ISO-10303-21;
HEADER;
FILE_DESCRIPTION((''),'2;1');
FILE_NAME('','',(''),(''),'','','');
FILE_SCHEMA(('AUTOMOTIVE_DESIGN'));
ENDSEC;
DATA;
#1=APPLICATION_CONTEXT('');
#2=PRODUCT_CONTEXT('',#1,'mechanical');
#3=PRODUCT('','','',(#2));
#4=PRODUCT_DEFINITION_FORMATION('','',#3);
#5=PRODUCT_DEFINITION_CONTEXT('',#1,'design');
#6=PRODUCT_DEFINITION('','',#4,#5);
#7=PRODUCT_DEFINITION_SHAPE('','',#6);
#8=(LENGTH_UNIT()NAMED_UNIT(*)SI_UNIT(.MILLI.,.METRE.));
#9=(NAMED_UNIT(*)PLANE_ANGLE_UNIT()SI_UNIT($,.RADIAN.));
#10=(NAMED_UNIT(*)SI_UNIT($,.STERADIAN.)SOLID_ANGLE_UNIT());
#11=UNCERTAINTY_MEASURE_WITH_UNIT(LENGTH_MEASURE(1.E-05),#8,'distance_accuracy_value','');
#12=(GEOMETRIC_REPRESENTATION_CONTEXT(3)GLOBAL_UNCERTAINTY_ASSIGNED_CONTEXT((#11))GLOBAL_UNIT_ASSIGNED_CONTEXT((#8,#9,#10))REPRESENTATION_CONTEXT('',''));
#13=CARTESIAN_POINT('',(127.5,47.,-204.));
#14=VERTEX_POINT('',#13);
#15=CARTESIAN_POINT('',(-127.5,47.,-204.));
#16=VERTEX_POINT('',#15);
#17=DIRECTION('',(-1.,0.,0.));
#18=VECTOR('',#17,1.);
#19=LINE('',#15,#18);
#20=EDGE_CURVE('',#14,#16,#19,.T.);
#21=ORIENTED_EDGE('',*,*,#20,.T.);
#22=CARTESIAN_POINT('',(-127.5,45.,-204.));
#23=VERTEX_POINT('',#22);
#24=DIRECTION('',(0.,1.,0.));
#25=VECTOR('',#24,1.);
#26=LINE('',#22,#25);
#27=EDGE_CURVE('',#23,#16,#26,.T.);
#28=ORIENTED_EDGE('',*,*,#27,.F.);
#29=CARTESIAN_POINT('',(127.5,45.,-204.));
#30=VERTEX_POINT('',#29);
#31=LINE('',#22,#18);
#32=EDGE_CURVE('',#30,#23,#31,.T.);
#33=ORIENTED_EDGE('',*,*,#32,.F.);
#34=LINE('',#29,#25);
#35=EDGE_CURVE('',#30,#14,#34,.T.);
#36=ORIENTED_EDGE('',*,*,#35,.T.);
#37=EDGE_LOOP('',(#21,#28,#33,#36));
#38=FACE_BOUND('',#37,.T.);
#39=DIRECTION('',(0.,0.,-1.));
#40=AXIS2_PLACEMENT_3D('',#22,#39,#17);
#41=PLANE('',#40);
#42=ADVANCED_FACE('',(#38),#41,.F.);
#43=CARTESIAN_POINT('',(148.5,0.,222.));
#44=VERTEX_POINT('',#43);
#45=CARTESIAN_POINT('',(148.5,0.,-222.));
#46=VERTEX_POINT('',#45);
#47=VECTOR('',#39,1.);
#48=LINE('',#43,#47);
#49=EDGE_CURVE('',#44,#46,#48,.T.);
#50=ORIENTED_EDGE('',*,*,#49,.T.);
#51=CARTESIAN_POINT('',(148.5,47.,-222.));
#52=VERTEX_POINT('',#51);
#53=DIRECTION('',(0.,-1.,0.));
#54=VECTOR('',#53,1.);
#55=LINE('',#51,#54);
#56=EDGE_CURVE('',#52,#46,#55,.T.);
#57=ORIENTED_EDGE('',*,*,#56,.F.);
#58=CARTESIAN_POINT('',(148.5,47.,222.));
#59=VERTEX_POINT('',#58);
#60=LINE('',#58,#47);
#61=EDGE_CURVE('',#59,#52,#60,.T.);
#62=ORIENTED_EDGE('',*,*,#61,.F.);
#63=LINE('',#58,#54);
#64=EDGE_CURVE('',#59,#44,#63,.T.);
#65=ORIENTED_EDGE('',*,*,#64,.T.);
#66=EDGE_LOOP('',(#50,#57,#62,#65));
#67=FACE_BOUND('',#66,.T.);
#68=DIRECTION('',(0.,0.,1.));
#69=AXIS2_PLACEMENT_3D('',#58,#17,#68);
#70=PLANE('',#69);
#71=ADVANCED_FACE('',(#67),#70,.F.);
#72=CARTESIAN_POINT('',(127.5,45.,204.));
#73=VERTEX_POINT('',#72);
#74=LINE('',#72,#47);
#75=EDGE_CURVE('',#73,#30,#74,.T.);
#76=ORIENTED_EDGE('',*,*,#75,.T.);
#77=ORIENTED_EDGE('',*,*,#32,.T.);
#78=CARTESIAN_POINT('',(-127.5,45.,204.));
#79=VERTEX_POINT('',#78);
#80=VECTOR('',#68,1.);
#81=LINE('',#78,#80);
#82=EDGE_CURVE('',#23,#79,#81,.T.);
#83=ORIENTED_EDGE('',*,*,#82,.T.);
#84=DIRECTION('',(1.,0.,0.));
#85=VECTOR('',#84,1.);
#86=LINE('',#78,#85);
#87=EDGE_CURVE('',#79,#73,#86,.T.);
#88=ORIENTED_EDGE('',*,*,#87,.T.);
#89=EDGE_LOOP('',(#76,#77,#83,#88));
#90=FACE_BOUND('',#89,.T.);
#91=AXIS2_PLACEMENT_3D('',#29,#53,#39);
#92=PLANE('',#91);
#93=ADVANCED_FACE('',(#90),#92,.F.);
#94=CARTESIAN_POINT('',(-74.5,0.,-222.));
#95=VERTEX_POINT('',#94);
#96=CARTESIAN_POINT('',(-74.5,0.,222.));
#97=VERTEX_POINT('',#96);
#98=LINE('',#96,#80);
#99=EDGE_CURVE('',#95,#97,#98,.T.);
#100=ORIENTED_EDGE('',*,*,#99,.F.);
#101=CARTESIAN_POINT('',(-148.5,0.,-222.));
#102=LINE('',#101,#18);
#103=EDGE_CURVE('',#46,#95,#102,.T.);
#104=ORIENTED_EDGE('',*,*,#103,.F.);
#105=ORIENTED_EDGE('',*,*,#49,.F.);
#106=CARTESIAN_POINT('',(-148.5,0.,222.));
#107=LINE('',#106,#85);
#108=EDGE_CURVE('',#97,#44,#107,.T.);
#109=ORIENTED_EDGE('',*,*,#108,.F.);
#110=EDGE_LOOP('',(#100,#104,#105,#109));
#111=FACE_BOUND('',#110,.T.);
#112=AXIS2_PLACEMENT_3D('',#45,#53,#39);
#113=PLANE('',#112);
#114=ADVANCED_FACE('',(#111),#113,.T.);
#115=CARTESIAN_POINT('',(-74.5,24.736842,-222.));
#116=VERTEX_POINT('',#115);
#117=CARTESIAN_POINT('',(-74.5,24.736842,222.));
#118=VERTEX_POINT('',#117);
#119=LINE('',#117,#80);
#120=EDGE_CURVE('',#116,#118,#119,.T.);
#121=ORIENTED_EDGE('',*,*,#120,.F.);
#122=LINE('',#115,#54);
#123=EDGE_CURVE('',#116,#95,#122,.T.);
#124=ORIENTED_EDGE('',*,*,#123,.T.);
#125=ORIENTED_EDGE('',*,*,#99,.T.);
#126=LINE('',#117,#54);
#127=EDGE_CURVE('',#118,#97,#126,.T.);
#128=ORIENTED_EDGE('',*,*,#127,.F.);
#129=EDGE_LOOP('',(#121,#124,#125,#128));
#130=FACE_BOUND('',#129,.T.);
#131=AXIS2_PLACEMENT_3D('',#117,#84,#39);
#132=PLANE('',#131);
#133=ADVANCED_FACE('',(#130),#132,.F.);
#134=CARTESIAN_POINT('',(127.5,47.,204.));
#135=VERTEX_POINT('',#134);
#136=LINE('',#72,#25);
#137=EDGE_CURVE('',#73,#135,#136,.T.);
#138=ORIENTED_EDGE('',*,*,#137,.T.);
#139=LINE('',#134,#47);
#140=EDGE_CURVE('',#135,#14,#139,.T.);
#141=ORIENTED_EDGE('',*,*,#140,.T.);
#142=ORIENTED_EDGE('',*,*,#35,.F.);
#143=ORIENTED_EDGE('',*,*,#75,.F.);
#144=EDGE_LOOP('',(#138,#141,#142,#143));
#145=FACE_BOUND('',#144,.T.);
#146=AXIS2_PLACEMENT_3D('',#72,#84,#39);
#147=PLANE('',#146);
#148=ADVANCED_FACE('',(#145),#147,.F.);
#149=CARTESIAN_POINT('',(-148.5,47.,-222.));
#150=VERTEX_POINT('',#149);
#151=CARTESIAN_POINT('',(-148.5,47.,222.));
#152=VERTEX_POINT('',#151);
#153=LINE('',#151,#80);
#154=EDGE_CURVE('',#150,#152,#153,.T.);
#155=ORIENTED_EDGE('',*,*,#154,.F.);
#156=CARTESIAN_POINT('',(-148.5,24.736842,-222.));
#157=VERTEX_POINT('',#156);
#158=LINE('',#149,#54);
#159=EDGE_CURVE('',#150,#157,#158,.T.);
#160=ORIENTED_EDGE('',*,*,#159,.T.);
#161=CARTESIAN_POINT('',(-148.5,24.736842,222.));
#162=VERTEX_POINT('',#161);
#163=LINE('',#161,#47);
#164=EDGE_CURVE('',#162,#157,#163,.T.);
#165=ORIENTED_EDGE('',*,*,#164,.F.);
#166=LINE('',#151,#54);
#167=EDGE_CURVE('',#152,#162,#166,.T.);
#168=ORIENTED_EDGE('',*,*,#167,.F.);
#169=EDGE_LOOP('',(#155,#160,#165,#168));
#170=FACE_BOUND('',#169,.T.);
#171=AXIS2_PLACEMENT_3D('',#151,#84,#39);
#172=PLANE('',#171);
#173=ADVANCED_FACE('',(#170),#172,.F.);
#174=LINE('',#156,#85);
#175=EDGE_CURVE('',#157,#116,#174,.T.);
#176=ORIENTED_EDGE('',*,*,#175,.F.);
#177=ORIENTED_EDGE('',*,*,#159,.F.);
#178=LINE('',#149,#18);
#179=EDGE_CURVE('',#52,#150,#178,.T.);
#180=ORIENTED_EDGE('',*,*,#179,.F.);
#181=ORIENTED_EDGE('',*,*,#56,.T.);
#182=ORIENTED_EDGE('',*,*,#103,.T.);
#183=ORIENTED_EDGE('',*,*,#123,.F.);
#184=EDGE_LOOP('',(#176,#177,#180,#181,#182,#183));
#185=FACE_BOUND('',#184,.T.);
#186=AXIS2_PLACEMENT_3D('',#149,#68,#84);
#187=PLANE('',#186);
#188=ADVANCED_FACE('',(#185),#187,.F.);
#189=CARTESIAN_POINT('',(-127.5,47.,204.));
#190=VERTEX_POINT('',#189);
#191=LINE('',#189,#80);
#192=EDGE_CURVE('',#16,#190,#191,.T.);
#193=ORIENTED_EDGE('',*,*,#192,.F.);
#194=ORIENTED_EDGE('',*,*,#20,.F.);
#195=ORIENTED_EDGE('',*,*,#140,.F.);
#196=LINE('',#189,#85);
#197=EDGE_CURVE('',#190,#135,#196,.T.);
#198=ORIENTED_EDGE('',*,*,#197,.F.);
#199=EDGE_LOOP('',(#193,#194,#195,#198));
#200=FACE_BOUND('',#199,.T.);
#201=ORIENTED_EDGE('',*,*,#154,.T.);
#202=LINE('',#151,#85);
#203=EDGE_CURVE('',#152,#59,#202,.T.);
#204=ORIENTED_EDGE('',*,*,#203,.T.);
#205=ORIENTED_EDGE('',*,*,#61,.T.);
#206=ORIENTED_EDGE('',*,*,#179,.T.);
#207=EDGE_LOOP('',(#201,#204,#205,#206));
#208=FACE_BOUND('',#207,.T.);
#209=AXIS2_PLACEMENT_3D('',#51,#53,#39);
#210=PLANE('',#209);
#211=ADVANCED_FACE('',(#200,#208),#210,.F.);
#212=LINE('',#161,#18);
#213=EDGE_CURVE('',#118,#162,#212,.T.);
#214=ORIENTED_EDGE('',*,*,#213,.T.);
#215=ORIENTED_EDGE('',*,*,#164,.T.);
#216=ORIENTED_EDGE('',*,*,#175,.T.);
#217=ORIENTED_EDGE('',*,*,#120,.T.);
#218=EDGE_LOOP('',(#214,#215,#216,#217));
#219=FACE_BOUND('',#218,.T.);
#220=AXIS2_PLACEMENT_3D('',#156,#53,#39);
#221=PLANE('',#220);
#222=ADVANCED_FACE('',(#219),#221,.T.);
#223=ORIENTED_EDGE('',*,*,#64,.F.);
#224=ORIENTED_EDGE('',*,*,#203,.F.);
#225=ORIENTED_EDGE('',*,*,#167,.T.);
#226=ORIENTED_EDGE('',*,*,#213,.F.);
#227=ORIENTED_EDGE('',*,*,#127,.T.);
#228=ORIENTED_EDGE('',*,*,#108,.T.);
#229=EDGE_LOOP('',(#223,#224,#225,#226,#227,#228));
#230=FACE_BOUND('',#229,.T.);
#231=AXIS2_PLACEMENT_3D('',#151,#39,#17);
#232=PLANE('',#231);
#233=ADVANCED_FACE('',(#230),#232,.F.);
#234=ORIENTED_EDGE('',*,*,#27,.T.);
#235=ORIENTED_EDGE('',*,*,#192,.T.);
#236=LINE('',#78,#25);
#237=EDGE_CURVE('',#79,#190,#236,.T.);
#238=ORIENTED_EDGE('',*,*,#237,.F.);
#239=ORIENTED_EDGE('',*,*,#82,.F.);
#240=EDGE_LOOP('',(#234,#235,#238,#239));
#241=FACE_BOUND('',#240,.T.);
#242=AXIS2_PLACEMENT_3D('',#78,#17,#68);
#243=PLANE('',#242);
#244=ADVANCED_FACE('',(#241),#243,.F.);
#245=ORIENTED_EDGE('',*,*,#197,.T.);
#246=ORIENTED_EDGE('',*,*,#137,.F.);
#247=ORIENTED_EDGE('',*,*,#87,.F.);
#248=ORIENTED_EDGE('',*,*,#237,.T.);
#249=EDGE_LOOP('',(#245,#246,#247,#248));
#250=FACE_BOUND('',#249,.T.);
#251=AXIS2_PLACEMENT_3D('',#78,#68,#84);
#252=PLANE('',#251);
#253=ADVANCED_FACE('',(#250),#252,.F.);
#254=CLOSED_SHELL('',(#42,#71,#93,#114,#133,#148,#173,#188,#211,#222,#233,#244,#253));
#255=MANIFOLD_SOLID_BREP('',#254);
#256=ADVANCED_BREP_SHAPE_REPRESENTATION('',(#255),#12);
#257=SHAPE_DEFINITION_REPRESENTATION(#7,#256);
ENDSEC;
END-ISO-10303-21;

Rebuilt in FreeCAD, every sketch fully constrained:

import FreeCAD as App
import Part
import Sketcher

V = App.Vector

doc = App.newDocument("Part")
params = doc.addObject("Spreadsheet::Sheet", "Params")
for row, (alias, value) in enumerate([
    ("sketch1_width", "297 mm"),
    ("sketch1_height", "444 mm"),
    ("pad1_length", "47 mm"),
    ("sketch2_width", "255 mm"),
    ("sketch2_height", "408 mm"),
    ("pocket1_length", "2 mm"),
    ("sketch3_width", "74 mm"),
    ("sketch3_height", "444 mm"),
    ("pocket2_length", "24.736842 mm"),
], start=1):
    params.set(f"A{row}", alias)
    params.set(f"B{row}", "=" + value)
    params.setAlias(f"B{row}", alias)

body = doc.addObject("PartDesign::Body", "Body")

sketch1 = doc.addObject("Sketcher::SketchObject", "Sketch")
body.addObject(sketch1)
sketch1.AttachmentSupport = (doc.XZ_Plane, [""])
sketch1.MapMode = "FlatFace"
sketch1.addGeometry(Part.LineSegment(V(-148.5, -222, 0), V(-148.5, 222, 0)), False)
sketch1.addGeometry(Part.LineSegment(V(-148.5, 222, 0), V(148.5, 222, 0)), False)
sketch1.addGeometry(Part.LineSegment(V(148.5, 222, 0), V(148.5, -222, 0)), False)
sketch1.addGeometry(Part.LineSegment(V(148.5, -222, 0), V(-148.5, -222, 0)), False)
sketch1.addConstraint(Sketcher.Constraint("Coincident", 0, 2, 1, 1))
sketch1.addConstraint(Sketcher.Constraint("Coincident", 1, 2, 2, 1))
sketch1.addConstraint(Sketcher.Constraint("Coincident", 2, 2, 3, 1))
sketch1.addConstraint(Sketcher.Constraint("Coincident", 3, 2, 0, 1))
sketch1.addConstraint(Sketcher.Constraint("Vertical", 0))
sketch1.addConstraint(Sketcher.Constraint("Horizontal", 1))
sketch1.addConstraint(Sketcher.Constraint("Vertical", 2))
sketch1.addConstraint(Sketcher.Constraint("Horizontal", 3))
sketch1.addConstraint(Sketcher.Constraint("Symmetric", 0, 2, 2, 2, -1, 1))
sketch1.addConstraint(Sketcher.Constraint("DistanceX", 1, 1, 1, 2, 297.0))
sketch1.addConstraint(Sketcher.Constraint("DistanceY", 0, 1, 0, 2, 444.0))
sketch1.setExpression("Constraints[9]", "Params.sketch1_width")
sketch1.setExpression("Constraints[10]", "Params.sketch1_height")
pad1 = doc.addObject("PartDesign::Pad", "Pad")
body.addObject(pad1)
pad1.Profile = sketch1
pad1.setExpression("Length", "Params.pad1_length")
pad1.Reversed = True

sketch2 = doc.addObject("Sketcher::SketchObject", "Sketch001")
body.addObject(sketch2)
sketch2.AttachmentSupport = (doc.XZ_Plane, [""])
sketch2.MapMode = "FlatFace"
sketch2.AttachmentOffset = App.Placement(V(0, 0, -47), App.Rotation())
sketch2.addGeometry(Part.LineSegment(V(-127.5, -204, 0), V(-127.5, 204, 0)), False)
sketch2.addGeometry(Part.LineSegment(V(-127.5, 204, 0), V(127.5, 204, 0)), False)
sketch2.addGeometry(Part.LineSegment(V(127.5, 204, 0), V(127.5, -204, 0)), False)
sketch2.addGeometry(Part.LineSegment(V(127.5, -204, 0), V(-127.5, -204, 0)), False)
sketch2.addConstraint(Sketcher.Constraint("Coincident", 0, 2, 1, 1))
sketch2.addConstraint(Sketcher.Constraint("Coincident", 1, 2, 2, 1))
sketch2.addConstraint(Sketcher.Constraint("Coincident", 2, 2, 3, 1))
sketch2.addConstraint(Sketcher.Constraint("Coincident", 3, 2, 0, 1))
sketch2.addConstraint(Sketcher.Constraint("Vertical", 0))
sketch2.addConstraint(Sketcher.Constraint("Horizontal", 1))
sketch2.addConstraint(Sketcher.Constraint("Vertical", 2))
sketch2.addConstraint(Sketcher.Constraint("Horizontal", 3))
sketch2.addConstraint(Sketcher.Constraint("Symmetric", 0, 2, 2, 2, -1, 1))
sketch2.addConstraint(Sketcher.Constraint("DistanceX", 1, 1, 1, 2, 255.0))
sketch2.addConstraint(Sketcher.Constraint("DistanceY", 0, 1, 0, 2, 408.0))
sketch2.setExpression("Constraints[9]", "Params.sketch2_width")
sketch2.setExpression("Constraints[10]", "Params.sketch2_height")
pocket1 = doc.addObject("PartDesign::Pocket", "Pocket")
body.addObject(pocket1)
pocket1.Profile = sketch2
pocket1.setExpression("Length", "Params.pocket1_length")
pocket1.Reversed = True

sketch3 = doc.addObject("Sketcher::SketchObject", "Sketch002")
body.addObject(sketch3)
sketch3.AttachmentSupport = (doc.XZ_Plane, [""])
sketch3.MapMode = "FlatFace"
sketch3.addGeometry(Part.LineSegment(V(-148.5, 222, 0), V(-148.5, -222, 0)), False)
sketch3.addGeometry(Part.LineSegment(V(-148.5, -222, 0), V(-74.5, -222, 0)), False)
sketch3.addGeometry(Part.LineSegment(V(-74.5, -222, 0), V(-74.5, 222, 0)), False)
sketch3.addGeometry(Part.LineSegment(V(-74.5, 222, 0), V(-148.5, 222, 0)), False)
sketch3.addConstraint(Sketcher.Constraint("Coincident", 0, 2, 1, 1))
sketch3.addConstraint(Sketcher.Constraint("Coincident", 1, 2, 2, 1))
sketch3.addConstraint(Sketcher.Constraint("Coincident", 2, 2, 3, 1))
sketch3.addConstraint(Sketcher.Constraint("Coincident", 3, 2, 0, 1))
sketch3.addConstraint(Sketcher.Constraint("Vertical", 0))
sketch3.addConstraint(Sketcher.Constraint("Horizontal", 1))
sketch3.addConstraint(Sketcher.Constraint("Vertical", 2))
sketch3.addConstraint(Sketcher.Constraint("Horizontal", 3))
sketch3.addConstraint(Sketcher.Constraint("DistanceX", 1, 1, 1, 2, 74.0))
sketch3.addConstraint(Sketcher.Constraint("DistanceY", 0, 2, 0, 1, 444.0))
sketch3.addConstraint(Sketcher.Constraint("DistanceY", 0, 2, -1, 1, 222.0))
sketch3.addConstraint(Sketcher.Constraint("DistanceX", 0, 2, -1, 1, 148.5))
sketch3.setExpression("Constraints[8]", "Params.sketch3_width")
sketch3.setExpression("Constraints[9]", "Params.sketch3_height")
pocket2 = doc.addObject("PartDesign::Pocket", "Pocket001")
body.addObject(pocket2)
pocket2.Profile = sketch3
pocket2.setExpression("Length", "Params.pocket2_length")

doc.recompute()
